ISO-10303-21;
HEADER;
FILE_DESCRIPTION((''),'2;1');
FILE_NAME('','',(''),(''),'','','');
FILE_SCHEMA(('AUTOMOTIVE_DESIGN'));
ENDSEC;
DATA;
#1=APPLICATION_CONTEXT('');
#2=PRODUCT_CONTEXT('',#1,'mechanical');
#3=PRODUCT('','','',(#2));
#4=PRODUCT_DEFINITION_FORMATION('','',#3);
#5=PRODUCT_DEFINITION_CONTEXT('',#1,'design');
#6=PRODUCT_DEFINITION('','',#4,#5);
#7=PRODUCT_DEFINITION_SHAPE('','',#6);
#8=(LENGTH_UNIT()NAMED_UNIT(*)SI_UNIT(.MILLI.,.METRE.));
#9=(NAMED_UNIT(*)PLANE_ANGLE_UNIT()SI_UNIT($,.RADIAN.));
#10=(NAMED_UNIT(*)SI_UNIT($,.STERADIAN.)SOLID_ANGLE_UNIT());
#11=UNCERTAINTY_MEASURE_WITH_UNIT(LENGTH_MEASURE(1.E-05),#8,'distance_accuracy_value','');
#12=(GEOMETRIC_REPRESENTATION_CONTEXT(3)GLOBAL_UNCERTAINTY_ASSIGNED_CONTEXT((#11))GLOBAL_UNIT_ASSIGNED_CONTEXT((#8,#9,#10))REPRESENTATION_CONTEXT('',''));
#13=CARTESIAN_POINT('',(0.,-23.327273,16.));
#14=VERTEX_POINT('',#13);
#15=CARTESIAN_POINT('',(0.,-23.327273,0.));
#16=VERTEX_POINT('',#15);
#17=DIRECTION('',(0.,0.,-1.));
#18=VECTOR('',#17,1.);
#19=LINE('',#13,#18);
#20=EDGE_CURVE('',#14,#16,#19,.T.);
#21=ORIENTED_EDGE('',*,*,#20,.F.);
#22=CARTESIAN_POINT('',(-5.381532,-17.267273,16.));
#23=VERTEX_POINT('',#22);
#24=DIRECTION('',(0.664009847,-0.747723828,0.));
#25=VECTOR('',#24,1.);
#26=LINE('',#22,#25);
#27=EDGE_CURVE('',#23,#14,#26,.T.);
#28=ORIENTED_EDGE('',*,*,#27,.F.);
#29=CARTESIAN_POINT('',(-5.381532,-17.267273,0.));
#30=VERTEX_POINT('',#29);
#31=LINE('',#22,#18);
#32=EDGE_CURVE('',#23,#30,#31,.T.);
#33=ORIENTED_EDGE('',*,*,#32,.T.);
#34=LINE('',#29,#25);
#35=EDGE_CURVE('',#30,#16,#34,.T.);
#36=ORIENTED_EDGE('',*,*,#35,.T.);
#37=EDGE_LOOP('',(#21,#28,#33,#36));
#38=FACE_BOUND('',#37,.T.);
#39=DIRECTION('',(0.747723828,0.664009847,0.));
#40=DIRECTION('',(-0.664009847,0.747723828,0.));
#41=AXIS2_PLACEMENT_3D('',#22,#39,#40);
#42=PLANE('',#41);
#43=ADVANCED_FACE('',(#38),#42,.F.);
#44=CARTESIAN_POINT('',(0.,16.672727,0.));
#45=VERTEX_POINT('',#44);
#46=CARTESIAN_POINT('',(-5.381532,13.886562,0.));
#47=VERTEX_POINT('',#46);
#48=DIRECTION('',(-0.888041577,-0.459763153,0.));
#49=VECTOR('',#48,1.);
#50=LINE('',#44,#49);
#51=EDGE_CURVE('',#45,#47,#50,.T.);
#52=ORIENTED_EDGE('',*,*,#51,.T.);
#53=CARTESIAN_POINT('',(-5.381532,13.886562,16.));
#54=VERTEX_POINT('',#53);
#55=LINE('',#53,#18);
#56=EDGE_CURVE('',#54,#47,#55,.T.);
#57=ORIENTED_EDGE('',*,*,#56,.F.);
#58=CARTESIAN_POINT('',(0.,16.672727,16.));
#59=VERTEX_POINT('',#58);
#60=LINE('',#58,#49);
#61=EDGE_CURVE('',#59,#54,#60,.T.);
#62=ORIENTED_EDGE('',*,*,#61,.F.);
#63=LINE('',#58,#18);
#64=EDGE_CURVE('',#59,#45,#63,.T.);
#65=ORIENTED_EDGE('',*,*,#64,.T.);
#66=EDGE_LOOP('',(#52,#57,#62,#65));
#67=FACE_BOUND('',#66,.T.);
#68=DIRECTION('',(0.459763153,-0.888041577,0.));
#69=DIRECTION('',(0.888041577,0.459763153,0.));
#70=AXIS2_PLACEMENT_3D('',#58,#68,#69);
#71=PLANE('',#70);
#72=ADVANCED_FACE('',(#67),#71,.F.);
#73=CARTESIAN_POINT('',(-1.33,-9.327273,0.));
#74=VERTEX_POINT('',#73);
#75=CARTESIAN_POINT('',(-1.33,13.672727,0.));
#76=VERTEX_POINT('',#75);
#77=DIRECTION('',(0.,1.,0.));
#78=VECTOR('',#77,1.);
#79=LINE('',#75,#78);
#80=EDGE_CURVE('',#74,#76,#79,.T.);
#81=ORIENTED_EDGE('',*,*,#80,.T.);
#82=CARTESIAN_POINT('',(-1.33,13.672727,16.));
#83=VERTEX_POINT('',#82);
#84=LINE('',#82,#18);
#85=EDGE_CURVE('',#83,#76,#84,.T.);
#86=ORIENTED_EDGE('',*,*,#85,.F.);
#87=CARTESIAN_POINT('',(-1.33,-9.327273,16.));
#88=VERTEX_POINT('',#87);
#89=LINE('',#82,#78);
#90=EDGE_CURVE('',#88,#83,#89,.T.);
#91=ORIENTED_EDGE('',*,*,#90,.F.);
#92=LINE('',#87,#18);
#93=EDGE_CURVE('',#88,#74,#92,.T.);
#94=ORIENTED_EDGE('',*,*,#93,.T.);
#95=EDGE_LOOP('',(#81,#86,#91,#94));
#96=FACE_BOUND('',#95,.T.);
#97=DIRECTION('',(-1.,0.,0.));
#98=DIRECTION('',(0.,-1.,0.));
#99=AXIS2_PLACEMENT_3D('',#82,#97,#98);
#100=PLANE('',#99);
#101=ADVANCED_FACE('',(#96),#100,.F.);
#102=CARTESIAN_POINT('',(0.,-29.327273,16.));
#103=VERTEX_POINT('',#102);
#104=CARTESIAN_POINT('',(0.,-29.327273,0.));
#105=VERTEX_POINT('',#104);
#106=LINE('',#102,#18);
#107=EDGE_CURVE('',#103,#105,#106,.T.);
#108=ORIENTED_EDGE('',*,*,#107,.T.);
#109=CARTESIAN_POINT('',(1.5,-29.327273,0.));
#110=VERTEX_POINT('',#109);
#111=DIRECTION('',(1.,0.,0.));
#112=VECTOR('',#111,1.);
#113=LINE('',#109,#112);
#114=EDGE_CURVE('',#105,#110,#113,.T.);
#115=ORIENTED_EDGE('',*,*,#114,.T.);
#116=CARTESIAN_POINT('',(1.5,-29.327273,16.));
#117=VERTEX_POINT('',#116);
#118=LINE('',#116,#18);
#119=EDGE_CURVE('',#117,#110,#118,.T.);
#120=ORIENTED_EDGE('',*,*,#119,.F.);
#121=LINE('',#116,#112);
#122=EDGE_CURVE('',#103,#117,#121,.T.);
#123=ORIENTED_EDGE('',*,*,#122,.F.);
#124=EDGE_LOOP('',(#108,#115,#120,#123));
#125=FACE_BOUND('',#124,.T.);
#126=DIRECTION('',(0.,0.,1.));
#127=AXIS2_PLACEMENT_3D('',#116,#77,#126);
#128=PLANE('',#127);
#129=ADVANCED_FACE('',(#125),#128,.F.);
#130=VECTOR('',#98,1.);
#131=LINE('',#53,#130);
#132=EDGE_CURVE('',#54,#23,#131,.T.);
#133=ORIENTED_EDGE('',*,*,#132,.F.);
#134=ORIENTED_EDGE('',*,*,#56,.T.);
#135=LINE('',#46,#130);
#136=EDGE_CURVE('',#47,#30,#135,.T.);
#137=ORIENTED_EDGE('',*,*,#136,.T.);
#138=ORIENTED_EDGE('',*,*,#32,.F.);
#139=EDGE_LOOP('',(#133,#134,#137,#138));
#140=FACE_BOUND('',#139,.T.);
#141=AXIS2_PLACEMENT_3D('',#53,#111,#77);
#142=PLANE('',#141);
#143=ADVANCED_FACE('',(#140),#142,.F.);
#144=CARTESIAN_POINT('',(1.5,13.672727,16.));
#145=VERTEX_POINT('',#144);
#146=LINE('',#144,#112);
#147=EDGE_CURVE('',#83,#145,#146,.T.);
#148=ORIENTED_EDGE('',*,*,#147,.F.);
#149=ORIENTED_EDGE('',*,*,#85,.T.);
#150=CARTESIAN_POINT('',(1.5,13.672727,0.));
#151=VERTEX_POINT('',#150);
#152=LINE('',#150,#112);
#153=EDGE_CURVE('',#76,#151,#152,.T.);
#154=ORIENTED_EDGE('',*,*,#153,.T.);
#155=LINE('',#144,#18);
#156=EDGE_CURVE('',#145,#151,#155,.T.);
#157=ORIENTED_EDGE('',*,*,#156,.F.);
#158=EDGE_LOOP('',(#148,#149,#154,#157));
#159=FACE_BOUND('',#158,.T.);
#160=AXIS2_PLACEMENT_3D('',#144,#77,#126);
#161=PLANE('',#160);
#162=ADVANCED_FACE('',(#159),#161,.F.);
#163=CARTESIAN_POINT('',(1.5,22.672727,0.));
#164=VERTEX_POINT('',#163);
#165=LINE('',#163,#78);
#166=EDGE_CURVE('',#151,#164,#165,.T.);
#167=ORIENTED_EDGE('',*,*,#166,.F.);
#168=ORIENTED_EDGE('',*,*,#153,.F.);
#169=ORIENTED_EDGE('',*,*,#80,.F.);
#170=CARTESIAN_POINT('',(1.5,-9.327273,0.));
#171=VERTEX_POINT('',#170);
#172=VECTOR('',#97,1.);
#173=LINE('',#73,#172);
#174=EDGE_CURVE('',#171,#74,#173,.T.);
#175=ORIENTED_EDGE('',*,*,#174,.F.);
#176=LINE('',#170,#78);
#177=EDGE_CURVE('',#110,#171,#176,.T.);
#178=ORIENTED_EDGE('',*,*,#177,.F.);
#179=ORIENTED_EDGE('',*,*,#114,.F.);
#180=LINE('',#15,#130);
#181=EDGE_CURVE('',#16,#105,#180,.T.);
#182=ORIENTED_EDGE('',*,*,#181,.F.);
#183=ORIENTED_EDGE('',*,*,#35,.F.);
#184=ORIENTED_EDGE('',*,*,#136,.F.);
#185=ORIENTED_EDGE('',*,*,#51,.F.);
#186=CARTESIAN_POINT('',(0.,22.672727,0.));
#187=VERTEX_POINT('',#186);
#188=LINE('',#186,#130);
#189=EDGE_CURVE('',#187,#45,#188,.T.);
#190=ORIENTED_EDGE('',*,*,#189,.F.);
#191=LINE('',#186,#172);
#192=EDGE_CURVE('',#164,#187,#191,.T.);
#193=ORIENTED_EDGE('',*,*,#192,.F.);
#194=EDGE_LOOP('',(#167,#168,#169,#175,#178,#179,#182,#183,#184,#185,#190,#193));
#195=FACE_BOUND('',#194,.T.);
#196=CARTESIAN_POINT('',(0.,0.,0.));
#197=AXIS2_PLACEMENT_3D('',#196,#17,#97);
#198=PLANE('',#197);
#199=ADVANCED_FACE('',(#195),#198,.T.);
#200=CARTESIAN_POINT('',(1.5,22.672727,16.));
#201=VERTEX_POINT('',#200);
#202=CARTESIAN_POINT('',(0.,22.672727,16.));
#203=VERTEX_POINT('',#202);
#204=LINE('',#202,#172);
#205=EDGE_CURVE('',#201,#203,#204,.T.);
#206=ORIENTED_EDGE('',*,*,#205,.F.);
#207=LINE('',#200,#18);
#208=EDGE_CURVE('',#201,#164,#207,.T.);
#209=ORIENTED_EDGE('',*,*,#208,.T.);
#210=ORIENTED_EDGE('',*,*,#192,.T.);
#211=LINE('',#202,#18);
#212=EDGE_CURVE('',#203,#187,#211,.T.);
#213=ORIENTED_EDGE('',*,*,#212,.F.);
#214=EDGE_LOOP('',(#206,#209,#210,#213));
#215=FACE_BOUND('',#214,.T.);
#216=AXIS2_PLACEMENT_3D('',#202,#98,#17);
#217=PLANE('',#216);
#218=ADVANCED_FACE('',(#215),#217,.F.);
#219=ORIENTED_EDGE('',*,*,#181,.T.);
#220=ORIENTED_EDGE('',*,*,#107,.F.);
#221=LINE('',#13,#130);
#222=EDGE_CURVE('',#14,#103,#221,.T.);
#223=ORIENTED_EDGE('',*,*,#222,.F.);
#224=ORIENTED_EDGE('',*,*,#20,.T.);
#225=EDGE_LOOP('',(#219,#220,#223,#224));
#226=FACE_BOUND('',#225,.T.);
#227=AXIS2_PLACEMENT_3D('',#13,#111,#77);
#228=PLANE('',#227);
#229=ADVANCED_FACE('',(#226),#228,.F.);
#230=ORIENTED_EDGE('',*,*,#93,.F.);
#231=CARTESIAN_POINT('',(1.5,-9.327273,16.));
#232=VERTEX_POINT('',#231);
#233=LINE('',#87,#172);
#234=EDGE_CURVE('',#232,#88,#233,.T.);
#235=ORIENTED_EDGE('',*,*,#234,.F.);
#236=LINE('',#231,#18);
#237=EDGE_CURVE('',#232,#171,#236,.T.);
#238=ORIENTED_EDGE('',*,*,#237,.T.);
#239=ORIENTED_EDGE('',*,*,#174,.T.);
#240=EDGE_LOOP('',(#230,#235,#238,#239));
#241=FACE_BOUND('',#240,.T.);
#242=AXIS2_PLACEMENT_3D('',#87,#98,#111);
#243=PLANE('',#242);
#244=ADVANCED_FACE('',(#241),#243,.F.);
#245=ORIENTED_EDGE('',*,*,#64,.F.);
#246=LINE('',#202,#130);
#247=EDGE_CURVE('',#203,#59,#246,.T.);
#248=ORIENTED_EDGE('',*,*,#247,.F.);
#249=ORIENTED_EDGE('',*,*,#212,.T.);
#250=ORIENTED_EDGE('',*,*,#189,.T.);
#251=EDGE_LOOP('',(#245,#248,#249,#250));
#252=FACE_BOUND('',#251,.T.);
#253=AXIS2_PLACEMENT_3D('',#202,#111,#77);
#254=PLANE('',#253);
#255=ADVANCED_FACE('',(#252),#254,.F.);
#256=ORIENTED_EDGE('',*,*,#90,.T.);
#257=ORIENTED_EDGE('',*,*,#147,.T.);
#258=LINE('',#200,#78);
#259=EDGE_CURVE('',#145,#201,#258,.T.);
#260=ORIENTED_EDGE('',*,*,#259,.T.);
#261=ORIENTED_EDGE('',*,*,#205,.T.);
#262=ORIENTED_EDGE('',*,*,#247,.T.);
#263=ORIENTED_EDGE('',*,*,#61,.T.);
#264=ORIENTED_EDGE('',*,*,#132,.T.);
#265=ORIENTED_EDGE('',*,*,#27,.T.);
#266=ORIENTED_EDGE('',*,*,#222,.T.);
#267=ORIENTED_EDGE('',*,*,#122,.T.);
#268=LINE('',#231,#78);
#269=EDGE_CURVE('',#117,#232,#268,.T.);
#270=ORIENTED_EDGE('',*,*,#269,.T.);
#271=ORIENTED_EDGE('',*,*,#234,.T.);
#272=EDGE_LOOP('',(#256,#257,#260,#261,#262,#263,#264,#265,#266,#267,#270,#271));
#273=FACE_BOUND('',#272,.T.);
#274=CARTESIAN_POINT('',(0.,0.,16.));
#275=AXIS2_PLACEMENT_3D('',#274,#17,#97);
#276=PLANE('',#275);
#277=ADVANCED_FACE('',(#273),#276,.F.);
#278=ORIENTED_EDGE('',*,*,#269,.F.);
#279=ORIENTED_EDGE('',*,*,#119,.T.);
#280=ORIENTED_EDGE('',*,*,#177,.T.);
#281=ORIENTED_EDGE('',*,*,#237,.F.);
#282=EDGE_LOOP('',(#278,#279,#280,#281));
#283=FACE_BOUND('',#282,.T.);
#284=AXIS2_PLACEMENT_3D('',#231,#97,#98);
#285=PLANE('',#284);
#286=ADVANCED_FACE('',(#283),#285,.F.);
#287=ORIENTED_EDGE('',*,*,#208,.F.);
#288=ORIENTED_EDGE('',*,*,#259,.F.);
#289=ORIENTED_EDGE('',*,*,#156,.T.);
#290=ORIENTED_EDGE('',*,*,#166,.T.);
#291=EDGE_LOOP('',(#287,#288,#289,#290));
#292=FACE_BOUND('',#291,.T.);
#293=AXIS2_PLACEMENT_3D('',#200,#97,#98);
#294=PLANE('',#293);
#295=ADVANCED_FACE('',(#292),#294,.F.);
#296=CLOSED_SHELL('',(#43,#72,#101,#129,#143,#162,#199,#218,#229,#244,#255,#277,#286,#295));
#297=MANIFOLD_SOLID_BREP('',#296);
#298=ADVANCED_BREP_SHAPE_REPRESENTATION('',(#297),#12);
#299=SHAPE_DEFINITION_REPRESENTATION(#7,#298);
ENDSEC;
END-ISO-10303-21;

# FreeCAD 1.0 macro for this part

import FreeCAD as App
import Part
import Sketcher


def add_polygon(sketch, points):
    """Adds a closed chain of lines whose ends are joined by coincident constraints."""
    first, n = sketch.GeometryCount, len(points)
    for a, b in zip(points, points[1:] + points[:1]):
        sketch.addGeometry(Part.LineSegment(App.Vector(*a, 0), App.Vector(*b, 0)), False)
    for i in range(n):
        sketch.addConstraint(Sketcher.Constraint("Coincident", first + i, 2, first + (i + 1) % n, 1))

doc = App.newDocument("Part")
params = doc.addObject("Spreadsheet::Sheet", "Params")
for row, (alias, value) in enumerate([
    ("sketch1_height", "6 mm"),
    ("sketch1_height2", "20 mm"),
    ("sketch1_height3", "23 mm"),
    ("sketch1_height4", "9 mm"),
    ("sketch1_width", "1.5 mm"),
    ("pad1_length", "16 mm"),
], start=1):
    params.set(f"A{row}", alias)
    params.set(f"B{row}", "=" + value)
    params.setAlias(f"B{row}", alias)

body = doc.addObject("PartDesign::Body", "Body")

sketch1 = body.newObject("Sketcher::SketchObject", "Sketch")
sketch1.AttachmentSupport = (doc.getObject("XY_Plane"), [""])
sketch1.MapMode = "FlatFace"
add_polygon(sketch1, [(-5.4, 13.9), (-5.4, -17.3), (0, -23.3), (0, -29.3), (1.5, -29.3), (1.5, -9.3), (-1.3, -9.3), (-1.3, 13.7), (1.5, 13.7), (1.5, 22.7), (0, 22.7), (0, 16.7)])
sketch1.addConstraint([
    Sketcher.Constraint("Vertical", 0),
    Sketcher.Constraint("Vertical", 2),
    Sketcher.Constraint("Horizontal", 3),
    Sketcher.Constraint("Vertical", 4),
    Sketcher.Constraint("Horizontal", 5),
    Sketcher.Constraint("Vertical", 6),
    Sketcher.Constraint("Horizontal", 7),
    Sketcher.Constraint("Vertical", 8),
    Sketcher.Constraint("Horizontal", 9),
    Sketcher.Constraint("Vertical", 10),
    Sketcher.Constraint("PointOnObject", 1, 2, -2),
    Sketcher.Constraint("PointOnObject", 9, 2, -2),
    Sketcher.Constraint("Vertical", 4, 2, 7, 2),
    Sketcher.Constraint("Equal", 2, 10),
    Sketcher.Constraint("DistanceY", 2, 2, 2, 1, 6.0),
    Sketcher.Constraint("DistanceY", 4, 1, 4, 2, 20.0),
    Sketcher.Constraint("DistanceY", 6, 1, 6, 2, 23.0),
    Sketcher.Constraint("DistanceY", 8, 1, 8, 2, 9.0),
    Sketcher.Constraint("DistanceX", 3, 1, 3, 2, 1.5),
    Sketcher.Constraint("DistanceX", 5, 2, 5, 1, 2.83),
    Sketcher.Constraint("Distance", 11, 6.06),
    Sketcher.Constraint("DistanceY", 1, 2, 0, 2, 6.06),
    Sketcher.Constraint("DistanceY", 0, 2, 0, 1, 31.153835),
    Sketcher.Constraint("DistanceY", 0, 2, -1, 1, 17.267273),
])
sketch1.setExpression("Constraints[26]", "Params.sketch1_height")
sketch1.setExpression("Constraints[27]", "Params.sketch1_height2")
sketch1.setExpression("Constraints[28]", "Params.sketch1_height3")
sketch1.setExpression("Constraints[29]", "Params.sketch1_height4")
sketch1.setExpression("Constraints[30]", "Params.sketch1_width")
pad1 = body.newObject("PartDesign::Pad", "Pad")
pad1.Profile = sketch1
pad1.setExpression("Length", "Params.pad1_length")

doc.recompute()
